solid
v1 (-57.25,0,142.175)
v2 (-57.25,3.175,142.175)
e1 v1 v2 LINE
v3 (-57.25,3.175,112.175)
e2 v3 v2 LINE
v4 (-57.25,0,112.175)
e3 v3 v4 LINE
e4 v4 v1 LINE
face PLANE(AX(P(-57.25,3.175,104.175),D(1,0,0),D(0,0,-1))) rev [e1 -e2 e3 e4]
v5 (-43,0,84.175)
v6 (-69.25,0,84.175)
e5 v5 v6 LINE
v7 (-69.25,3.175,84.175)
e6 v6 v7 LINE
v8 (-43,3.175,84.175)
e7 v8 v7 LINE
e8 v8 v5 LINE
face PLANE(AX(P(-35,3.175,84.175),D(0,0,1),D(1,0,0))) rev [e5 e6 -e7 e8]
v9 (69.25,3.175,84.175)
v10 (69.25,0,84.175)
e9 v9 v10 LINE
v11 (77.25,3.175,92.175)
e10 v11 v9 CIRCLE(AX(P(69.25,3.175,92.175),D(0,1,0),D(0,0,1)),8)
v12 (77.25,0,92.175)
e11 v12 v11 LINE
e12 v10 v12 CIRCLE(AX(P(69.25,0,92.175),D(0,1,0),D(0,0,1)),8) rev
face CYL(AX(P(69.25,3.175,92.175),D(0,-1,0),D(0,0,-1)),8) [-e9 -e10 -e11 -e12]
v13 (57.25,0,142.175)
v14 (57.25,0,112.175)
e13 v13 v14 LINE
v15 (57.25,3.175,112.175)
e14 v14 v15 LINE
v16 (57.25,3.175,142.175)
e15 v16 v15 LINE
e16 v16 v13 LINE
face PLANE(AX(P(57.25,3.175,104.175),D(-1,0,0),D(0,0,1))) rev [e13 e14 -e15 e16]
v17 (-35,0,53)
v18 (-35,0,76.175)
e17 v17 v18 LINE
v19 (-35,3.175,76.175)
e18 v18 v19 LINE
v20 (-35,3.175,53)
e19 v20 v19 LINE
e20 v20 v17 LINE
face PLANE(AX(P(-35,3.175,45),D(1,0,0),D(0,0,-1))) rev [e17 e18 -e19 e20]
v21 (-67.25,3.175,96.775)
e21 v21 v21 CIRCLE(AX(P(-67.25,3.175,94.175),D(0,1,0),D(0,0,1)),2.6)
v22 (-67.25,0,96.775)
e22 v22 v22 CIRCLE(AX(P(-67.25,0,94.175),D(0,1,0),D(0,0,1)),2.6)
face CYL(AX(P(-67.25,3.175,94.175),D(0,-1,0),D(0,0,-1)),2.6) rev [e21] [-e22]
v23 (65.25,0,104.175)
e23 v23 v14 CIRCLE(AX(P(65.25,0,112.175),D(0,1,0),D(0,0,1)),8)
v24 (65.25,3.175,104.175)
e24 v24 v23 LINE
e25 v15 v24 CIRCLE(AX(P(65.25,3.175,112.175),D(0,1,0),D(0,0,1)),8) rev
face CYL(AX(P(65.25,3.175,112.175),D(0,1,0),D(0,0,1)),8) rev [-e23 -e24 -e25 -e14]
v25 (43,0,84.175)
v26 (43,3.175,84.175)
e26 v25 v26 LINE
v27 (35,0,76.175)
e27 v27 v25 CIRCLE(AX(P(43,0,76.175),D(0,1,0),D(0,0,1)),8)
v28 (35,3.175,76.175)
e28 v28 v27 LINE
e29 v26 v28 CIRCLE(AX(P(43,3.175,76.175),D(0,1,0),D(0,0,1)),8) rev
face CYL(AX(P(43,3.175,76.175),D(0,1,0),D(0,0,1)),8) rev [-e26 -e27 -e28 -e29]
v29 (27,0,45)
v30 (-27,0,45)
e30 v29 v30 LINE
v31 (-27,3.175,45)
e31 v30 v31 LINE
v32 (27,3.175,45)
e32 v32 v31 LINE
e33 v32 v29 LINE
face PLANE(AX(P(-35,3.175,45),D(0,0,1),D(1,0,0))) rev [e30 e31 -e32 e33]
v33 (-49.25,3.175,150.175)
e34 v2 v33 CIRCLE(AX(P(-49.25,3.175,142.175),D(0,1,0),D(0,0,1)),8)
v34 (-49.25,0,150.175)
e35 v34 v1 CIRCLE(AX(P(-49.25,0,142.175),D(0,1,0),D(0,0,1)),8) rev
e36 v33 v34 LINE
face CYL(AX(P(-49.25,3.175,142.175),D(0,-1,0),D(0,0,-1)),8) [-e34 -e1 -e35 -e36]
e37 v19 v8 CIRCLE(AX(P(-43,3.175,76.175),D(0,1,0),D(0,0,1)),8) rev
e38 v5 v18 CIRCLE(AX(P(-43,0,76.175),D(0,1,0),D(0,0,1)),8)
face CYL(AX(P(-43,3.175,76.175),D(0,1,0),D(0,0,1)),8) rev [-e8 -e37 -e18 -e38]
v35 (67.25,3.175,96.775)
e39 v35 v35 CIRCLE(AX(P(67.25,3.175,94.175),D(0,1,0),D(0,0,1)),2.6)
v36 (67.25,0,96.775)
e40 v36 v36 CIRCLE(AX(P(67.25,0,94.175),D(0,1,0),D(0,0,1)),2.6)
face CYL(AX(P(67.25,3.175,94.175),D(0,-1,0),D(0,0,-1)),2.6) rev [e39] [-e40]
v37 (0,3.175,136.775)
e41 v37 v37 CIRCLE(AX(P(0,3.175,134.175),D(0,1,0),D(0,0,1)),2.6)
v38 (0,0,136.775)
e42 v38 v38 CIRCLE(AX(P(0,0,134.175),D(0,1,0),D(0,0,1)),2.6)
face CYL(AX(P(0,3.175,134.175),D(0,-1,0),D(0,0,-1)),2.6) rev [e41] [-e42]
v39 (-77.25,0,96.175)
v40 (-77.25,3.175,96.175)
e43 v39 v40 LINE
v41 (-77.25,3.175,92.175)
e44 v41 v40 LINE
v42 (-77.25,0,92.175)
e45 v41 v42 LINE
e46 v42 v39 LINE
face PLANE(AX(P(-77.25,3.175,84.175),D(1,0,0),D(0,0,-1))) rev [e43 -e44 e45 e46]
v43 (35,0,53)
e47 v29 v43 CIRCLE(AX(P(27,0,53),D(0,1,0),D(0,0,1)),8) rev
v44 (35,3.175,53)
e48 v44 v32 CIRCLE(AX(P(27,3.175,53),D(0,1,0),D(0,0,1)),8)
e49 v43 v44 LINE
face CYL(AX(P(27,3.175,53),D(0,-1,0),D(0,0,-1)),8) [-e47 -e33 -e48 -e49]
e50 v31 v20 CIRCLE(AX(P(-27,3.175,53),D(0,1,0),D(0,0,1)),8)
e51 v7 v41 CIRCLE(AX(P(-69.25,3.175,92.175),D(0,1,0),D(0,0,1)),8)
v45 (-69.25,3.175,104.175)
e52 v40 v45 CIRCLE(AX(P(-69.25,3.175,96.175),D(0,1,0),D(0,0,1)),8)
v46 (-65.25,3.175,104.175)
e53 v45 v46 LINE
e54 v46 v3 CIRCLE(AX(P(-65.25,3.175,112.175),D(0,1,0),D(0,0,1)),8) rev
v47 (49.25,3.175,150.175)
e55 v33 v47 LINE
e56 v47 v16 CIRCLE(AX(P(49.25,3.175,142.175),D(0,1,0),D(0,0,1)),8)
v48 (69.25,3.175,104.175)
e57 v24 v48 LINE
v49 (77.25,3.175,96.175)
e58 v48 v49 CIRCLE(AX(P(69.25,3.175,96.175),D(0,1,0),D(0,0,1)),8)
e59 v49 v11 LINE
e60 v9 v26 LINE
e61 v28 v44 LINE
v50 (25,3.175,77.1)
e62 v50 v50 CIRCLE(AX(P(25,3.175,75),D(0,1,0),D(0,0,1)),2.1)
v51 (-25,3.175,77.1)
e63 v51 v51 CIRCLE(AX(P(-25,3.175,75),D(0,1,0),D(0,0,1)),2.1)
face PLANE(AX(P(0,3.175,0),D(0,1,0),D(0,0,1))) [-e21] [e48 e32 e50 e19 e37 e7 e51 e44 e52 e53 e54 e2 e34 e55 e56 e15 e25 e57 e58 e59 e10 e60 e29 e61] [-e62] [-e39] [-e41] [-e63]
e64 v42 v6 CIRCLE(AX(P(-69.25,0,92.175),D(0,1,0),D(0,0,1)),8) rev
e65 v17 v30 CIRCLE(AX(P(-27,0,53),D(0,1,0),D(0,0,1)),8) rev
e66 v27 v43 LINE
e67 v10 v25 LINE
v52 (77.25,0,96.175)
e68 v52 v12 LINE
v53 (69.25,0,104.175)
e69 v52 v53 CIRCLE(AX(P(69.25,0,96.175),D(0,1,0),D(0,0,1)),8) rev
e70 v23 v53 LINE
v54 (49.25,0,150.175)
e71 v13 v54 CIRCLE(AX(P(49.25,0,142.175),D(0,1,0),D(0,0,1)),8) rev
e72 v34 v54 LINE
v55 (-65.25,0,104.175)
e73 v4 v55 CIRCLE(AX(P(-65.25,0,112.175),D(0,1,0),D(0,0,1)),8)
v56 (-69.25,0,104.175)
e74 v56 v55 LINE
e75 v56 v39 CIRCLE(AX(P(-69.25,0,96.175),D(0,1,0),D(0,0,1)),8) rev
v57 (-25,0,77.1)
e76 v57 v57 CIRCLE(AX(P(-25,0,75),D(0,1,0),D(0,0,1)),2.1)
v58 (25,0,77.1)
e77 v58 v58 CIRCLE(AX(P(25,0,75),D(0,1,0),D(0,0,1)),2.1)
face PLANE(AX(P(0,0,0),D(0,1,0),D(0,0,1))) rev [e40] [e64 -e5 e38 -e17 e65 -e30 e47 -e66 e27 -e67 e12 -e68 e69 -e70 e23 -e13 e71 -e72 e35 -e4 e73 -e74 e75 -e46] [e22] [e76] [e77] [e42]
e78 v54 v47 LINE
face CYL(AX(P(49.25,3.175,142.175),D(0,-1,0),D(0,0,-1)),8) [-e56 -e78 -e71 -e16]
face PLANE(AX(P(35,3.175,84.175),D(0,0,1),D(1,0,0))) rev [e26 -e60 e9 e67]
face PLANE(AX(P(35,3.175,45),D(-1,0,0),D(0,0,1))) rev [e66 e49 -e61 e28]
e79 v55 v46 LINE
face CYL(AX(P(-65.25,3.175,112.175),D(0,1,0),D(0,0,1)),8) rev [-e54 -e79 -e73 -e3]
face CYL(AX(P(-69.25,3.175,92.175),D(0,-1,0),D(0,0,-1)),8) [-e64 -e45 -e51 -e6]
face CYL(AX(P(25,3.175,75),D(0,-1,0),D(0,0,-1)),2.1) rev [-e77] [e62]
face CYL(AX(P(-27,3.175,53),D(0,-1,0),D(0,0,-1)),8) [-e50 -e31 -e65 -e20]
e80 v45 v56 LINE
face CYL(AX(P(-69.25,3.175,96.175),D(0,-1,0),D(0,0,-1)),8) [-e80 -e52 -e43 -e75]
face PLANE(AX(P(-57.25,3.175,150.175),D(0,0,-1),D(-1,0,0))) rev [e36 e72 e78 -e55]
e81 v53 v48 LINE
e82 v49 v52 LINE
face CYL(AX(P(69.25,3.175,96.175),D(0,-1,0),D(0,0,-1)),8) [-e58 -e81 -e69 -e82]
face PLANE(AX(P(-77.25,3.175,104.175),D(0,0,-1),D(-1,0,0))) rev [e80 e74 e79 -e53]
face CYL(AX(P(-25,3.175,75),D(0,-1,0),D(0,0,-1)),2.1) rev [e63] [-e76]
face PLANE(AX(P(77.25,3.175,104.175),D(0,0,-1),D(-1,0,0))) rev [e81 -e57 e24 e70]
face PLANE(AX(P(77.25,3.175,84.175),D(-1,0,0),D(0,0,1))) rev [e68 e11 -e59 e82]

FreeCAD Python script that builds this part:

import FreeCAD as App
import Part
import Sketcher
Q = App.Units.Quantity


def edges_at(feature, points):
    """Names of the edges that pass closest to the given points."""
    edges = feature.Shape.Edges
    near = lambda p: min(range(len(edges)), key=lambda i: edges[i].distToShape(Part.Vertex(*p))[0])
    return sorted({f"Edge{near(p) + 1}" for p in points})

doc = App.newDocument("Part")
body = doc.addObject("PartDesign::Body", "Body")

# Sketch on XZ plane
sketch1 = doc.addObject("Sketcher::SketchObject", "Sketch")
body.addObject(sketch1)
sketch1.AttachmentSupport = (doc.XZ_Plane, [""])
sketch1.MapMode = "FlatFace"
sketch1.addGeometry(Part.LineSegment(App.Vector(35, 45, 0), App.Vector(-35, 45, 0)), False)
sketch1.addGeometry(Part.LineSegment(App.Vector(-35, 45, 0), App.Vector(-35, 84.2, 0)), False)
sketch1.addGeometry(Part.LineSegment(App.Vector(-35, 84.2, 0), App.Vector(-77.2, 84.2, 0)), False)
sketch1.addGeometry(Part.LineSegment(App.Vector(-77.2, 84.2, 0), App.Vector(-77.2, 104.2, 0)), False)
sketch1.addGeometry(Part.LineSegment(App.Vector(-77.2, 104.2, 0), App.Vector(-57.2, 104.2, 0)), False)
sketch1.addGeometry(Part.LineSegment(App.Vector(-57.2, 104.2, 0), App.Vector(-57.2, 150.2, 0)), False)
sketch1.addGeometry(Part.LineSegment(App.Vector(-57.2, 150.2, 0), App.Vector(57.2, 150.2, 0)), False)
sketch1.addGeometry(Part.LineSegment(App.Vector(57.2, 150.2, 0), App.Vector(57.2, 104.2, 0)), False)
sketch1.addGeometry(Part.LineSegment(App.Vector(57.2, 104.2, 0), App.Vector(77.2, 104.2, 0)), False)
sketch1.addGeometry(Part.LineSegment(App.Vector(77.2, 104.2, 0), App.Vector(77.2, 84.2, 0)), False)
sketch1.addGeometry(Part.LineSegment(App.Vector(77.2, 84.2, 0), App.Vector(35, 84.2, 0)), False)
sketch1.addGeometry(Part.LineSegment(App.Vector(35, 84.2, 0), App.Vector(35, 45, 0)), False)
sketch1.addGeometry(Part.Circle(App.Vector(0, 134.2, 0), App.Vector(0, 0, 1), 2.6), False)
sketch1.addGeometry(Part.Circle(App.Vector(67.2, 94.2, 0), App.Vector(0, 0, 1), 2.6), False)
sketch1.addGeometry(Part.Circle(App.Vector(25, 75, 0), App.Vector(0, 0, 1), 2.1), False)
sketch1.addGeometry(Part.Circle(App.Vector(-67.2, 94.2, 0), App.Vector(0, 0, 1), 2.6), False)
sketch1.addGeometry(Part.Circle(App.Vector(-25, 75, 0), App.Vector(0, 0, 1), 2.1), False)
sketch1.addConstraint(Sketcher.Constraint("Coincident", 0, 2, 1, 1))
sketch1.addConstraint(Sketcher.Constraint("Coincident", 1, 2, 2, 1))
sketch1.addConstraint(Sketcher.Constraint("Coincident", 2, 2, 3, 1))
sketch1.addConstraint(Sketcher.Constraint("Coincident", 3, 2, 4, 1))
sketch1.addConstraint(Sketcher.Constraint("Coincident", 4, 2, 5, 1))
sketch1.addConstraint(Sketcher.Constraint("Coincident", 5, 2, 6, 1))
sketch1.addConstraint(Sketcher.Constraint("Coincident", 6, 2, 7, 1))
sketch1.addConstraint(Sketcher.Constraint("Coincident", 7, 2, 8, 1))
sketch1.addConstraint(Sketcher.Constraint("Coincident", 8, 2, 9, 1))
sketch1.addConstraint(Sketcher.Constraint("Coincident", 9, 2, 10, 1))
sketch1.addConstraint(Sketcher.Constraint("Coincident", 10, 2, 11, 1))
sketch1.addConstraint(Sketcher.Constraint("Coincident", 11, 2, 0, 1))
sketch1.addConstraint(Sketcher.Constraint("Horizontal", 0))
sketch1.addConstraint(Sketcher.Constraint("Vertical", 1))
sketch1.addConstraint(Sketcher.Constraint("Horizontal", 2))
sketch1.addConstraint(Sketcher.Constraint("Vertical", 3))
sketch1.addConstraint(Sketcher.Constraint("Horizontal", 4))
sketch1.addConstraint(Sketcher.Constraint("Vertical", 5))
sketch1.addConstraint(Sketcher.Constraint("Horizontal", 6))
sketch1.addConstraint(Sketcher.Constraint("Vertical", 7))
sketch1.addConstraint(Sketcher.Constraint("Horizontal", 8))
sketch1.addConstraint(Sketcher.Constraint("Vertical", 9))
sketch1.addConstraint(Sketcher.Constraint("Horizontal", 10))
sketch1.addConstraint(Sketcher.Constraint("Vertical", 11))
sketch1.addConstraint(Sketcher.Constraint("Equal", 12, 13))
sketch1.addConstraint(Sketcher.Constraint("Equal", 13, 15))
sketch1.addConstraint(Sketcher.Constraint("Equal", 14, 16))
sketch1.addConstraint(Sketcher.Constraint("Symmetric", 13, 3, 15, 3, -2))
sketch1.addConstraint(Sketcher.Constraint("Symmetric", 14, 3, 16, 3, -2))
sketch1.addConstraint(Sketcher.Constraint("Symmetric", 4, 2, 7, 2, -2))
sketch1.addConstraint(Sketcher.Constraint("Symmetric", 2, 2, 9, 2, -2))
sketch1.addConstraint(Sketcher.Constraint("PointOnObject", 12, 3, -2))
sketch1.addConstraint(Sketcher.Constraint("Equal", 2, 10))
sketch1.addConstraint(Sketcher.Constraint("Equal", 8, 3))
sketch1.addConstraint(Sketcher.Constraint("Diameter", 12, Q("5.2 mm")))
sketch1.addConstraint(Sketcher.Constraint("Diameter", 14, Q("4.2 mm")))
sketch1.addConstraint(Sketcher.Constraint("DistanceX", 0, 2, 0, 1, Q("70 mm")))
sketch1.addConstraint(Sketcher.Constraint("DistanceX", 4, 1, 4, 2, Q("20 mm")))
sketch1.addConstraint(Sketcher.Constraint("DistanceY", 5, 1, 5, 2, Q("46 mm")))
sketch1.addConstraint(Sketcher.Constraint("DistanceX", 6, 1, 6, 2, Q("114.5 mm")))
sketch1.addConstraint(Sketcher.Constraint("DistanceX", -1, 1, 14, 3, Q("25 mm")))
sketch1.addConstraint(Sketcher.Constraint("DistanceY", -1, 1, 14, 3, Q("75 mm")))
sketch1.addConstraint(Sketcher.Constraint("DistanceY", -1, 1, 0, 2, Q("45 mm")))
sketch1.addConstraint(Sketcher.Constraint("DistanceY", 13, 3, 12, 3, Q("40 mm")))
sketch1.addConstraint(Sketcher.Constraint("DistanceY", 1, 2, 15, 3, Q("10 mm")))
sketch1.addConstraint(Sketcher.Constraint("DistanceX", 2, 2, 15, 3, Q("10 mm")))
sketch1.addConstraint(Sketcher.Constraint("DistanceY", 1, 1, 1, 2, Q("39.175 mm")))
pad1 = doc.addObject("PartDesign::Pad", "Pad")
body.addObject(pad1)
pad1.Profile = sketch1
pad1.Length = 3.175
pad1.Reversed = True
doc.recompute()

fillet = doc.addObject("PartDesign::Fillet", "Fillet")
body.addObject(fillet)
fillet.Base = (pad1, edges_at(pad1, [
    (35, 1.587, 84.175),
    (77.25, 1.587, 84.175),
    (77.25, 1.587, 104.175),
    (57.25, 1.587, 104.175),
    (57.25, 1.587, 150.175),
    (-57.25, 1.587, 150.175),
    (-57.25, 1.587, 104.175),
    (-77.25, 1.587, 104.175),
    (-77.25, 1.587, 84.175),
    (-35, 1.587, 84.175),
    (-35, 1.587, 45),
    (35, 1.587, 45),
]))
fillet.Radius = 8

doc.recompute()
